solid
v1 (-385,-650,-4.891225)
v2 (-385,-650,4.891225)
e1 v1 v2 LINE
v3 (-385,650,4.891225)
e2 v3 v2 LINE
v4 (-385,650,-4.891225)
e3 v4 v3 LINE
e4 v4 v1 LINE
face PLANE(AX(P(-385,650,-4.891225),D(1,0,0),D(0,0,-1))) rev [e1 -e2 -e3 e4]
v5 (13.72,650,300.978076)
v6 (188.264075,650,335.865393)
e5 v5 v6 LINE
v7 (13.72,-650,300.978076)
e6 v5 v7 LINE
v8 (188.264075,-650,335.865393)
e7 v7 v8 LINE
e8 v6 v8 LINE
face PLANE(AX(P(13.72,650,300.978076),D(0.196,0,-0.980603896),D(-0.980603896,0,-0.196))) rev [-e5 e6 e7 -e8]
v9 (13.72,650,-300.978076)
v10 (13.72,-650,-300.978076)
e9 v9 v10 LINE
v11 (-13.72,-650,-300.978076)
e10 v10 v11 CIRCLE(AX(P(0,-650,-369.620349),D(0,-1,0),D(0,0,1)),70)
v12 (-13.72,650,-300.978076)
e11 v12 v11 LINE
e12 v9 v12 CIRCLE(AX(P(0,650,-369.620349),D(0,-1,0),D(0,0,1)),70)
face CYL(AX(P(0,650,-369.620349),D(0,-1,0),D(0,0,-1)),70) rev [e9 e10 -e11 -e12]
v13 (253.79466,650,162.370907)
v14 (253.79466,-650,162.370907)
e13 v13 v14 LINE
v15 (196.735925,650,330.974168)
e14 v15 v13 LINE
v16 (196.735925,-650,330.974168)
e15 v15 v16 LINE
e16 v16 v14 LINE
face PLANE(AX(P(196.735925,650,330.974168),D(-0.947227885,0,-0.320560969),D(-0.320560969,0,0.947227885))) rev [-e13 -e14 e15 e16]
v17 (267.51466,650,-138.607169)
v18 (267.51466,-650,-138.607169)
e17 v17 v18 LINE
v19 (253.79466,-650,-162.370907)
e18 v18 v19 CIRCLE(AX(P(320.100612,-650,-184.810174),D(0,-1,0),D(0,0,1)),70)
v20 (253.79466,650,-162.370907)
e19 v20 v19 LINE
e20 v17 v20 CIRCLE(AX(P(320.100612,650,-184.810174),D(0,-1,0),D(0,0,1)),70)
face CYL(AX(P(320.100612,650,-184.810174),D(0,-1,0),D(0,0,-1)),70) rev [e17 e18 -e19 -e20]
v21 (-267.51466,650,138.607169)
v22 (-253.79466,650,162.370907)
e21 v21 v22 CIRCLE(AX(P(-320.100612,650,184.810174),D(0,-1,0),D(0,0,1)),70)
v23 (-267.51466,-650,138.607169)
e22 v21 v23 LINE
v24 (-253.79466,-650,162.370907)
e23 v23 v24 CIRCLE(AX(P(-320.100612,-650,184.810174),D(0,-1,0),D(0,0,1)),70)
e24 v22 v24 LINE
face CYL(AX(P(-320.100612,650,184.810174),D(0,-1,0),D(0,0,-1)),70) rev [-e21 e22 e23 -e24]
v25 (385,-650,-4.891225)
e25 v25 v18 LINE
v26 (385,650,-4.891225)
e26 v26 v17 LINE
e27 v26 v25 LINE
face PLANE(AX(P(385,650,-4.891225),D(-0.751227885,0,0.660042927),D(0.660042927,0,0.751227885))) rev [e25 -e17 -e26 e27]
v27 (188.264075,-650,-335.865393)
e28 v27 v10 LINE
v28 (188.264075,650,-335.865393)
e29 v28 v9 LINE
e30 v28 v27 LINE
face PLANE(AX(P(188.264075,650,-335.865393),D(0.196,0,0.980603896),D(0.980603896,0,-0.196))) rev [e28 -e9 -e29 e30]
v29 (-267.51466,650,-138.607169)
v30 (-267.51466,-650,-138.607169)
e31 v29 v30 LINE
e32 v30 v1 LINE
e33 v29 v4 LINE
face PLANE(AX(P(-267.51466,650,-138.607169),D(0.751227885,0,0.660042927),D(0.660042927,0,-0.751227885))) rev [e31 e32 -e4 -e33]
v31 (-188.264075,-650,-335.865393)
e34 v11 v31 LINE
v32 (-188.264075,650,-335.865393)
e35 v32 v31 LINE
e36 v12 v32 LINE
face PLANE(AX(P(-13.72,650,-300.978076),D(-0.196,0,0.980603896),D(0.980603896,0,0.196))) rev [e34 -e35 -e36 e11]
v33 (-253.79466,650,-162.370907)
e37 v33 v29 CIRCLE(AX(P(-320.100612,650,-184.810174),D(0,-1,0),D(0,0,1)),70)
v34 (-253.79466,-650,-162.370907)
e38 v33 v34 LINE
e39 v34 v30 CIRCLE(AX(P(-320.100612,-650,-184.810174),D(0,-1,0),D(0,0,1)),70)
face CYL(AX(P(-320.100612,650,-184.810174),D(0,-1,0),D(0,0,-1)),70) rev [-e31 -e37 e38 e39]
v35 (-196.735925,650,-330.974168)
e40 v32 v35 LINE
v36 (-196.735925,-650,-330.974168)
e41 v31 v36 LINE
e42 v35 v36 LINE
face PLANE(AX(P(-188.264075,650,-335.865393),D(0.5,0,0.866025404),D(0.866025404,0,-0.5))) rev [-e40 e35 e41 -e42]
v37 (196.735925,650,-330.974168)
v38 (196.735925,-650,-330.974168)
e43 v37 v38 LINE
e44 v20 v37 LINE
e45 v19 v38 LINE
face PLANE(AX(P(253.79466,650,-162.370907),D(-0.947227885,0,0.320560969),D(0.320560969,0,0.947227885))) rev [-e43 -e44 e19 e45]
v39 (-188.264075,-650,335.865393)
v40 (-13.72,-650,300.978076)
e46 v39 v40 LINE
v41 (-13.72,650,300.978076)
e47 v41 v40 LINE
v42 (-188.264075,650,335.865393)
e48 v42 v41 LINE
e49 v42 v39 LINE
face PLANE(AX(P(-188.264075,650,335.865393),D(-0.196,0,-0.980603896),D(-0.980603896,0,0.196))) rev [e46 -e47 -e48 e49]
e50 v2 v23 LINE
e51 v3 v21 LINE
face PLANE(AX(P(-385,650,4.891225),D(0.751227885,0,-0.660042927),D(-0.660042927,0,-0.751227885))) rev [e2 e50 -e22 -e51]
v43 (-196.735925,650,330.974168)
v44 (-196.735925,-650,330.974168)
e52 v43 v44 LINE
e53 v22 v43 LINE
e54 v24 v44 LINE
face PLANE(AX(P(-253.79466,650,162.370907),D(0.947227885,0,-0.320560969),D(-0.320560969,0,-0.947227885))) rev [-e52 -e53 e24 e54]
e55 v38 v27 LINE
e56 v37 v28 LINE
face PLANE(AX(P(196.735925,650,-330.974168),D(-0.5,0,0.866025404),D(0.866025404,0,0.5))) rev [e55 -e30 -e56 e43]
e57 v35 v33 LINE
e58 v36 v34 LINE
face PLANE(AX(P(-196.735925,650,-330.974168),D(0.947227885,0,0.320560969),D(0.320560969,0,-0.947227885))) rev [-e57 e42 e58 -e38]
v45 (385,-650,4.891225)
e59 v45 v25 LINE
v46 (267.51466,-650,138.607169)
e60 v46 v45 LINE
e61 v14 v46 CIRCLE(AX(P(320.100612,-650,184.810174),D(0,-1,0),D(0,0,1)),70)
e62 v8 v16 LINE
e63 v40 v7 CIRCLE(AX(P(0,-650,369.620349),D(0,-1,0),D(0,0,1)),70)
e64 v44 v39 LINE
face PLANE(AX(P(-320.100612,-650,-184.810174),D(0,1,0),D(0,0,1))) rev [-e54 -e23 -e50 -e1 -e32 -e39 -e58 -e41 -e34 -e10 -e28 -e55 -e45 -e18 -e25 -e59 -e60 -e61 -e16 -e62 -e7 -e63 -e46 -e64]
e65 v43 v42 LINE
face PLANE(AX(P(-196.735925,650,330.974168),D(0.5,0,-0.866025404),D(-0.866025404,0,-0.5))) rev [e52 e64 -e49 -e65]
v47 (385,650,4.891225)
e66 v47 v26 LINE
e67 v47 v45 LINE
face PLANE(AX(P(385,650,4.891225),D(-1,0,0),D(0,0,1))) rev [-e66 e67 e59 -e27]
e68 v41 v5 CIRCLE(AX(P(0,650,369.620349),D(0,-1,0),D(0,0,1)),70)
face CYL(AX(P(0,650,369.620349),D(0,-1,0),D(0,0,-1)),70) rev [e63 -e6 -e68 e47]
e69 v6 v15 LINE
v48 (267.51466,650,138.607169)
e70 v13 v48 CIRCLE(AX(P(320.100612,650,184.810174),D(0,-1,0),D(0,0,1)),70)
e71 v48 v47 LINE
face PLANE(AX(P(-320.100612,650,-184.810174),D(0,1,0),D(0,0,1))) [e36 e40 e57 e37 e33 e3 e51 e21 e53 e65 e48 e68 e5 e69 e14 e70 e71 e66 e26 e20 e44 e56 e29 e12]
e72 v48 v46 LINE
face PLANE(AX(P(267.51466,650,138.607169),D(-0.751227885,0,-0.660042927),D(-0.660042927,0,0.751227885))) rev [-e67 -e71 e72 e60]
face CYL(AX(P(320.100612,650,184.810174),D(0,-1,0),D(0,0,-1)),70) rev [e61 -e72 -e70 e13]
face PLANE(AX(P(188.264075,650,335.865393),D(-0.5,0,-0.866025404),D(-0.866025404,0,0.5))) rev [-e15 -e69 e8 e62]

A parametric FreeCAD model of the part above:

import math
import FreeCAD as App
import Part
import Sketcher
from FreeCAD import Vector
Q = App.Units.Quantity

doc = App.newDocument("Part")
body = doc.addObject("PartDesign::Body", "Body")

sketch1 = doc.addObject("Sketcher::SketchObject", "Sketch")
body.addObject(sketch1)
sketch1.AttachmentSupport = (doc.XZ_Plane, [""])
sketch1.MapMode = "FlatFace"
sketch1.addGeometry([
    Part.LineSegment(Vector(-268, -139, 0), Vector(-385, -5, 0)),
    Part.LineSegment(Vector(-385, -5, 0), Vector(-385, 5, 0)),
    Part.LineSegment(Vector(-385, 5, 0), Vector(-268, 139, 0)),
    Part.ArcOfCircle(Part.Circle(Vector(-320, 185, 0), Vector(0, 0, 1), 70), math.radians(-41), math.radians(-19)),
    Part.LineSegment(Vector(-254, 162, 0), Vector(-197, 331, 0)),
    Part.LineSegment(Vector(-197, 331, 0), Vector(-188, 336, 0)),
    Part.LineSegment(Vector(-188, 336, 0), Vector(-14, 301, 0)),
    Part.ArcOfCircle(Part.Circle(Vector(0, 370, 0), Vector(0, 0, 1), 70), math.radians(-101), math.radians(-79)),
    Part.LineSegment(Vector(14, 301, 0), Vector(188, 336, 0)),
    Part.LineSegment(Vector(188, 336, 0), Vector(197, 331, 0)),
    Part.LineSegment(Vector(197, 331, 0), Vector(254, 162, 0)),
    Part.ArcOfCircle(Part.Circle(Vector(320, 185, 0), Vector(0, 0, 1), 70), math.radians(-161), math.radians(-139)),
    Part.LineSegment(Vector(268, 139, 0), Vector(385, 5, 0)),
    Part.LineSegment(Vector(385, 5, 0), Vector(385, -5, 0)),
    Part.LineSegment(Vector(385, -5, 0), Vector(268, -139, 0)),
    Part.ArcOfCircle(Part.Circle(Vector(320, -185, 0), Vector(0, 0, 1), 70), math.radians(139), math.radians(161)),
    Part.LineSegment(Vector(254, -162, 0), Vector(197, -331, 0)),
    Part.LineSegment(Vector(197, -331, 0), Vector(188, -336, 0)),
    Part.LineSegment(Vector(188, -336, 0), Vector(14, -301, 0)),
    Part.ArcOfCircle(Part.Circle(Vector(0, -370, 0), Vector(0, 0, 1), 70), math.radians(79), math.radians(101)),
    Part.LineSegment(Vector(-14, -301, 0), Vector(-188, -336, 0)),
    Part.LineSegment(Vector(-188, -336, 0), Vector(-197, -331, 0)),
    Part.LineSegment(Vector(-197, -331, 0), Vector(-254, -162, 0)),
    Part.ArcOfCircle(Part.Circle(Vector(-320, -185, 0), Vector(0, 0, 1), 70), math.radians(19), math.radians(41)),
], False)
sketch1.addConstraint([
    Sketcher.Constraint("Coincident", 0, 2, 1, 1),
    Sketcher.Constraint("Coincident", 1, 2, 2, 1),
    Sketcher.Constraint("Tangent", 2, 2, 3, 1),
    Sketcher.Constraint("Tangent", 3, 2, 4, 1),
    Sketcher.Constraint("Coincident", 4, 2, 5, 1),
    Sketcher.Constraint("Coincident", 5, 2, 6, 1),
    Sketcher.Constraint("Tangent", 6, 2, 7, 1),
    Sketcher.Constraint("Tangent", 7, 2, 8, 1),
    Sketcher.Constraint("Coincident", 8, 2, 9, 1),
    Sketcher.Constraint("Coincident", 9, 2, 10, 1),
    Sketcher.Constraint("Tangent", 10, 2, 11, 1),
    Sketcher.Constraint("Tangent", 11, 2, 12, 1),
    Sketcher.Constraint("Coincident", 12, 2, 13, 1),
    Sketcher.Constraint("Coincident", 13, 2, 14, 1),
    Sketcher.Constraint("Tangent", 14, 2, 15, 1),
    Sketcher.Constraint("Tangent", 15, 2, 16, 1),
    Sketcher.Constraint("Coincident", 16, 2, 17, 1),
    Sketcher.Constraint("Coincident", 17, 2, 18, 1),
    Sketcher.Constraint("Tangent", 18, 2, 19, 1),
    Sketcher.Constraint("Tangent", 19, 2, 20, 1),
    Sketcher.Constraint("Coincident", 20, 2, 21, 1),
    Sketcher.Constraint("Coincident", 21, 2, 22, 1),
    Sketcher.Constraint("Tangent", 22, 2, 23, 1),
    Sketcher.Constraint("Tangent", 23, 2, 0, 1),
    Sketcher.Constraint("Vertical", 1),
    Sketcher.Constraint("Vertical", 13),
    Sketcher.Constraint("Equal", 3, 7),
    Sketcher.Constraint("Equal", 7, 11),
    Sketcher.Constraint("Equal", 11, 15),
    Sketcher.Constraint("Equal", 15, 19),
    Sketcher.Constraint("Equal", 19, 23),
    Sketcher.Constraint("Symmetric", 3, 3, 15, 3, -1, 1),
    Sketcher.Constraint("Symmetric", 7, 3, 19, 3, -1, 1),
    Sketcher.Constraint("Symmetric", 11, 3, 23, 3, -1, 1),
    Sketcher.Constraint("Symmetric", 0, 2, 12, 2, -1, 1),
    Sketcher.Constraint("Symmetric", 4, 2, 16, 2, -1, 1),
    Sketcher.Constraint("Symmetric", 5, 2, 17, 2, -1, 1),
    Sketcher.Constraint("Symmetric", 8, 2, 20, 2, -1, 1),
    Sketcher.Constraint("Symmetric", 9, 2, 21, 2, -1, 1),
    Sketcher.Constraint("Symmetric", 3, 3, 11, 3, -2),
    Sketcher.Constraint("Symmetric", 6, 2, 7, 2, -2),
    Sketcher.Constraint("Symmetric", 4, 2, 9, 2, -2),
    Sketcher.Constraint("Parallel", 2, 14),
    Sketcher.Constraint("Horizontal", 5, 2, 8, 2),
    Sketcher.Constraint("Horizontal", 2, 2, 11, 2),
    Sketcher.Constraint("Equal", 2, 4),
    Sketcher.Constraint("Equal", 4, 6),
    Sketcher.Constraint("Radius", 3, Q("70 mm")),
    Sketcher.Constraint("Angle", 5, Q("30 deg")),
    Sketcher.Constraint("DistanceX", 0, 2, -1, 1, Q("385 mm")),
    Sketcher.Constraint("DistanceX", 6, 2, -1, 1, Q("13.72 mm")),
    Sketcher.Constraint("DistanceX", 2, 2, 3, 2, Q("13.72 mm")),
    Sketcher.Constraint("DistanceY", 2, 2, 4, 2, Q("192.366999 mm")),
    Sketcher.Constraint("DistanceY", 1, 1, 1, 2, Q("9.782449 mm")),
    Sketcher.Constraint("DistanceY", 0, 2, 3, 3, Q("189.701399 mm")),
])
pad1 = doc.addObject("PartDesign::Pad", "Pad")
body.addObject(pad1)
pad1.Profile = sketch1
pad1.Length = 1300
pad1.Midplane = True

doc.recompute()
